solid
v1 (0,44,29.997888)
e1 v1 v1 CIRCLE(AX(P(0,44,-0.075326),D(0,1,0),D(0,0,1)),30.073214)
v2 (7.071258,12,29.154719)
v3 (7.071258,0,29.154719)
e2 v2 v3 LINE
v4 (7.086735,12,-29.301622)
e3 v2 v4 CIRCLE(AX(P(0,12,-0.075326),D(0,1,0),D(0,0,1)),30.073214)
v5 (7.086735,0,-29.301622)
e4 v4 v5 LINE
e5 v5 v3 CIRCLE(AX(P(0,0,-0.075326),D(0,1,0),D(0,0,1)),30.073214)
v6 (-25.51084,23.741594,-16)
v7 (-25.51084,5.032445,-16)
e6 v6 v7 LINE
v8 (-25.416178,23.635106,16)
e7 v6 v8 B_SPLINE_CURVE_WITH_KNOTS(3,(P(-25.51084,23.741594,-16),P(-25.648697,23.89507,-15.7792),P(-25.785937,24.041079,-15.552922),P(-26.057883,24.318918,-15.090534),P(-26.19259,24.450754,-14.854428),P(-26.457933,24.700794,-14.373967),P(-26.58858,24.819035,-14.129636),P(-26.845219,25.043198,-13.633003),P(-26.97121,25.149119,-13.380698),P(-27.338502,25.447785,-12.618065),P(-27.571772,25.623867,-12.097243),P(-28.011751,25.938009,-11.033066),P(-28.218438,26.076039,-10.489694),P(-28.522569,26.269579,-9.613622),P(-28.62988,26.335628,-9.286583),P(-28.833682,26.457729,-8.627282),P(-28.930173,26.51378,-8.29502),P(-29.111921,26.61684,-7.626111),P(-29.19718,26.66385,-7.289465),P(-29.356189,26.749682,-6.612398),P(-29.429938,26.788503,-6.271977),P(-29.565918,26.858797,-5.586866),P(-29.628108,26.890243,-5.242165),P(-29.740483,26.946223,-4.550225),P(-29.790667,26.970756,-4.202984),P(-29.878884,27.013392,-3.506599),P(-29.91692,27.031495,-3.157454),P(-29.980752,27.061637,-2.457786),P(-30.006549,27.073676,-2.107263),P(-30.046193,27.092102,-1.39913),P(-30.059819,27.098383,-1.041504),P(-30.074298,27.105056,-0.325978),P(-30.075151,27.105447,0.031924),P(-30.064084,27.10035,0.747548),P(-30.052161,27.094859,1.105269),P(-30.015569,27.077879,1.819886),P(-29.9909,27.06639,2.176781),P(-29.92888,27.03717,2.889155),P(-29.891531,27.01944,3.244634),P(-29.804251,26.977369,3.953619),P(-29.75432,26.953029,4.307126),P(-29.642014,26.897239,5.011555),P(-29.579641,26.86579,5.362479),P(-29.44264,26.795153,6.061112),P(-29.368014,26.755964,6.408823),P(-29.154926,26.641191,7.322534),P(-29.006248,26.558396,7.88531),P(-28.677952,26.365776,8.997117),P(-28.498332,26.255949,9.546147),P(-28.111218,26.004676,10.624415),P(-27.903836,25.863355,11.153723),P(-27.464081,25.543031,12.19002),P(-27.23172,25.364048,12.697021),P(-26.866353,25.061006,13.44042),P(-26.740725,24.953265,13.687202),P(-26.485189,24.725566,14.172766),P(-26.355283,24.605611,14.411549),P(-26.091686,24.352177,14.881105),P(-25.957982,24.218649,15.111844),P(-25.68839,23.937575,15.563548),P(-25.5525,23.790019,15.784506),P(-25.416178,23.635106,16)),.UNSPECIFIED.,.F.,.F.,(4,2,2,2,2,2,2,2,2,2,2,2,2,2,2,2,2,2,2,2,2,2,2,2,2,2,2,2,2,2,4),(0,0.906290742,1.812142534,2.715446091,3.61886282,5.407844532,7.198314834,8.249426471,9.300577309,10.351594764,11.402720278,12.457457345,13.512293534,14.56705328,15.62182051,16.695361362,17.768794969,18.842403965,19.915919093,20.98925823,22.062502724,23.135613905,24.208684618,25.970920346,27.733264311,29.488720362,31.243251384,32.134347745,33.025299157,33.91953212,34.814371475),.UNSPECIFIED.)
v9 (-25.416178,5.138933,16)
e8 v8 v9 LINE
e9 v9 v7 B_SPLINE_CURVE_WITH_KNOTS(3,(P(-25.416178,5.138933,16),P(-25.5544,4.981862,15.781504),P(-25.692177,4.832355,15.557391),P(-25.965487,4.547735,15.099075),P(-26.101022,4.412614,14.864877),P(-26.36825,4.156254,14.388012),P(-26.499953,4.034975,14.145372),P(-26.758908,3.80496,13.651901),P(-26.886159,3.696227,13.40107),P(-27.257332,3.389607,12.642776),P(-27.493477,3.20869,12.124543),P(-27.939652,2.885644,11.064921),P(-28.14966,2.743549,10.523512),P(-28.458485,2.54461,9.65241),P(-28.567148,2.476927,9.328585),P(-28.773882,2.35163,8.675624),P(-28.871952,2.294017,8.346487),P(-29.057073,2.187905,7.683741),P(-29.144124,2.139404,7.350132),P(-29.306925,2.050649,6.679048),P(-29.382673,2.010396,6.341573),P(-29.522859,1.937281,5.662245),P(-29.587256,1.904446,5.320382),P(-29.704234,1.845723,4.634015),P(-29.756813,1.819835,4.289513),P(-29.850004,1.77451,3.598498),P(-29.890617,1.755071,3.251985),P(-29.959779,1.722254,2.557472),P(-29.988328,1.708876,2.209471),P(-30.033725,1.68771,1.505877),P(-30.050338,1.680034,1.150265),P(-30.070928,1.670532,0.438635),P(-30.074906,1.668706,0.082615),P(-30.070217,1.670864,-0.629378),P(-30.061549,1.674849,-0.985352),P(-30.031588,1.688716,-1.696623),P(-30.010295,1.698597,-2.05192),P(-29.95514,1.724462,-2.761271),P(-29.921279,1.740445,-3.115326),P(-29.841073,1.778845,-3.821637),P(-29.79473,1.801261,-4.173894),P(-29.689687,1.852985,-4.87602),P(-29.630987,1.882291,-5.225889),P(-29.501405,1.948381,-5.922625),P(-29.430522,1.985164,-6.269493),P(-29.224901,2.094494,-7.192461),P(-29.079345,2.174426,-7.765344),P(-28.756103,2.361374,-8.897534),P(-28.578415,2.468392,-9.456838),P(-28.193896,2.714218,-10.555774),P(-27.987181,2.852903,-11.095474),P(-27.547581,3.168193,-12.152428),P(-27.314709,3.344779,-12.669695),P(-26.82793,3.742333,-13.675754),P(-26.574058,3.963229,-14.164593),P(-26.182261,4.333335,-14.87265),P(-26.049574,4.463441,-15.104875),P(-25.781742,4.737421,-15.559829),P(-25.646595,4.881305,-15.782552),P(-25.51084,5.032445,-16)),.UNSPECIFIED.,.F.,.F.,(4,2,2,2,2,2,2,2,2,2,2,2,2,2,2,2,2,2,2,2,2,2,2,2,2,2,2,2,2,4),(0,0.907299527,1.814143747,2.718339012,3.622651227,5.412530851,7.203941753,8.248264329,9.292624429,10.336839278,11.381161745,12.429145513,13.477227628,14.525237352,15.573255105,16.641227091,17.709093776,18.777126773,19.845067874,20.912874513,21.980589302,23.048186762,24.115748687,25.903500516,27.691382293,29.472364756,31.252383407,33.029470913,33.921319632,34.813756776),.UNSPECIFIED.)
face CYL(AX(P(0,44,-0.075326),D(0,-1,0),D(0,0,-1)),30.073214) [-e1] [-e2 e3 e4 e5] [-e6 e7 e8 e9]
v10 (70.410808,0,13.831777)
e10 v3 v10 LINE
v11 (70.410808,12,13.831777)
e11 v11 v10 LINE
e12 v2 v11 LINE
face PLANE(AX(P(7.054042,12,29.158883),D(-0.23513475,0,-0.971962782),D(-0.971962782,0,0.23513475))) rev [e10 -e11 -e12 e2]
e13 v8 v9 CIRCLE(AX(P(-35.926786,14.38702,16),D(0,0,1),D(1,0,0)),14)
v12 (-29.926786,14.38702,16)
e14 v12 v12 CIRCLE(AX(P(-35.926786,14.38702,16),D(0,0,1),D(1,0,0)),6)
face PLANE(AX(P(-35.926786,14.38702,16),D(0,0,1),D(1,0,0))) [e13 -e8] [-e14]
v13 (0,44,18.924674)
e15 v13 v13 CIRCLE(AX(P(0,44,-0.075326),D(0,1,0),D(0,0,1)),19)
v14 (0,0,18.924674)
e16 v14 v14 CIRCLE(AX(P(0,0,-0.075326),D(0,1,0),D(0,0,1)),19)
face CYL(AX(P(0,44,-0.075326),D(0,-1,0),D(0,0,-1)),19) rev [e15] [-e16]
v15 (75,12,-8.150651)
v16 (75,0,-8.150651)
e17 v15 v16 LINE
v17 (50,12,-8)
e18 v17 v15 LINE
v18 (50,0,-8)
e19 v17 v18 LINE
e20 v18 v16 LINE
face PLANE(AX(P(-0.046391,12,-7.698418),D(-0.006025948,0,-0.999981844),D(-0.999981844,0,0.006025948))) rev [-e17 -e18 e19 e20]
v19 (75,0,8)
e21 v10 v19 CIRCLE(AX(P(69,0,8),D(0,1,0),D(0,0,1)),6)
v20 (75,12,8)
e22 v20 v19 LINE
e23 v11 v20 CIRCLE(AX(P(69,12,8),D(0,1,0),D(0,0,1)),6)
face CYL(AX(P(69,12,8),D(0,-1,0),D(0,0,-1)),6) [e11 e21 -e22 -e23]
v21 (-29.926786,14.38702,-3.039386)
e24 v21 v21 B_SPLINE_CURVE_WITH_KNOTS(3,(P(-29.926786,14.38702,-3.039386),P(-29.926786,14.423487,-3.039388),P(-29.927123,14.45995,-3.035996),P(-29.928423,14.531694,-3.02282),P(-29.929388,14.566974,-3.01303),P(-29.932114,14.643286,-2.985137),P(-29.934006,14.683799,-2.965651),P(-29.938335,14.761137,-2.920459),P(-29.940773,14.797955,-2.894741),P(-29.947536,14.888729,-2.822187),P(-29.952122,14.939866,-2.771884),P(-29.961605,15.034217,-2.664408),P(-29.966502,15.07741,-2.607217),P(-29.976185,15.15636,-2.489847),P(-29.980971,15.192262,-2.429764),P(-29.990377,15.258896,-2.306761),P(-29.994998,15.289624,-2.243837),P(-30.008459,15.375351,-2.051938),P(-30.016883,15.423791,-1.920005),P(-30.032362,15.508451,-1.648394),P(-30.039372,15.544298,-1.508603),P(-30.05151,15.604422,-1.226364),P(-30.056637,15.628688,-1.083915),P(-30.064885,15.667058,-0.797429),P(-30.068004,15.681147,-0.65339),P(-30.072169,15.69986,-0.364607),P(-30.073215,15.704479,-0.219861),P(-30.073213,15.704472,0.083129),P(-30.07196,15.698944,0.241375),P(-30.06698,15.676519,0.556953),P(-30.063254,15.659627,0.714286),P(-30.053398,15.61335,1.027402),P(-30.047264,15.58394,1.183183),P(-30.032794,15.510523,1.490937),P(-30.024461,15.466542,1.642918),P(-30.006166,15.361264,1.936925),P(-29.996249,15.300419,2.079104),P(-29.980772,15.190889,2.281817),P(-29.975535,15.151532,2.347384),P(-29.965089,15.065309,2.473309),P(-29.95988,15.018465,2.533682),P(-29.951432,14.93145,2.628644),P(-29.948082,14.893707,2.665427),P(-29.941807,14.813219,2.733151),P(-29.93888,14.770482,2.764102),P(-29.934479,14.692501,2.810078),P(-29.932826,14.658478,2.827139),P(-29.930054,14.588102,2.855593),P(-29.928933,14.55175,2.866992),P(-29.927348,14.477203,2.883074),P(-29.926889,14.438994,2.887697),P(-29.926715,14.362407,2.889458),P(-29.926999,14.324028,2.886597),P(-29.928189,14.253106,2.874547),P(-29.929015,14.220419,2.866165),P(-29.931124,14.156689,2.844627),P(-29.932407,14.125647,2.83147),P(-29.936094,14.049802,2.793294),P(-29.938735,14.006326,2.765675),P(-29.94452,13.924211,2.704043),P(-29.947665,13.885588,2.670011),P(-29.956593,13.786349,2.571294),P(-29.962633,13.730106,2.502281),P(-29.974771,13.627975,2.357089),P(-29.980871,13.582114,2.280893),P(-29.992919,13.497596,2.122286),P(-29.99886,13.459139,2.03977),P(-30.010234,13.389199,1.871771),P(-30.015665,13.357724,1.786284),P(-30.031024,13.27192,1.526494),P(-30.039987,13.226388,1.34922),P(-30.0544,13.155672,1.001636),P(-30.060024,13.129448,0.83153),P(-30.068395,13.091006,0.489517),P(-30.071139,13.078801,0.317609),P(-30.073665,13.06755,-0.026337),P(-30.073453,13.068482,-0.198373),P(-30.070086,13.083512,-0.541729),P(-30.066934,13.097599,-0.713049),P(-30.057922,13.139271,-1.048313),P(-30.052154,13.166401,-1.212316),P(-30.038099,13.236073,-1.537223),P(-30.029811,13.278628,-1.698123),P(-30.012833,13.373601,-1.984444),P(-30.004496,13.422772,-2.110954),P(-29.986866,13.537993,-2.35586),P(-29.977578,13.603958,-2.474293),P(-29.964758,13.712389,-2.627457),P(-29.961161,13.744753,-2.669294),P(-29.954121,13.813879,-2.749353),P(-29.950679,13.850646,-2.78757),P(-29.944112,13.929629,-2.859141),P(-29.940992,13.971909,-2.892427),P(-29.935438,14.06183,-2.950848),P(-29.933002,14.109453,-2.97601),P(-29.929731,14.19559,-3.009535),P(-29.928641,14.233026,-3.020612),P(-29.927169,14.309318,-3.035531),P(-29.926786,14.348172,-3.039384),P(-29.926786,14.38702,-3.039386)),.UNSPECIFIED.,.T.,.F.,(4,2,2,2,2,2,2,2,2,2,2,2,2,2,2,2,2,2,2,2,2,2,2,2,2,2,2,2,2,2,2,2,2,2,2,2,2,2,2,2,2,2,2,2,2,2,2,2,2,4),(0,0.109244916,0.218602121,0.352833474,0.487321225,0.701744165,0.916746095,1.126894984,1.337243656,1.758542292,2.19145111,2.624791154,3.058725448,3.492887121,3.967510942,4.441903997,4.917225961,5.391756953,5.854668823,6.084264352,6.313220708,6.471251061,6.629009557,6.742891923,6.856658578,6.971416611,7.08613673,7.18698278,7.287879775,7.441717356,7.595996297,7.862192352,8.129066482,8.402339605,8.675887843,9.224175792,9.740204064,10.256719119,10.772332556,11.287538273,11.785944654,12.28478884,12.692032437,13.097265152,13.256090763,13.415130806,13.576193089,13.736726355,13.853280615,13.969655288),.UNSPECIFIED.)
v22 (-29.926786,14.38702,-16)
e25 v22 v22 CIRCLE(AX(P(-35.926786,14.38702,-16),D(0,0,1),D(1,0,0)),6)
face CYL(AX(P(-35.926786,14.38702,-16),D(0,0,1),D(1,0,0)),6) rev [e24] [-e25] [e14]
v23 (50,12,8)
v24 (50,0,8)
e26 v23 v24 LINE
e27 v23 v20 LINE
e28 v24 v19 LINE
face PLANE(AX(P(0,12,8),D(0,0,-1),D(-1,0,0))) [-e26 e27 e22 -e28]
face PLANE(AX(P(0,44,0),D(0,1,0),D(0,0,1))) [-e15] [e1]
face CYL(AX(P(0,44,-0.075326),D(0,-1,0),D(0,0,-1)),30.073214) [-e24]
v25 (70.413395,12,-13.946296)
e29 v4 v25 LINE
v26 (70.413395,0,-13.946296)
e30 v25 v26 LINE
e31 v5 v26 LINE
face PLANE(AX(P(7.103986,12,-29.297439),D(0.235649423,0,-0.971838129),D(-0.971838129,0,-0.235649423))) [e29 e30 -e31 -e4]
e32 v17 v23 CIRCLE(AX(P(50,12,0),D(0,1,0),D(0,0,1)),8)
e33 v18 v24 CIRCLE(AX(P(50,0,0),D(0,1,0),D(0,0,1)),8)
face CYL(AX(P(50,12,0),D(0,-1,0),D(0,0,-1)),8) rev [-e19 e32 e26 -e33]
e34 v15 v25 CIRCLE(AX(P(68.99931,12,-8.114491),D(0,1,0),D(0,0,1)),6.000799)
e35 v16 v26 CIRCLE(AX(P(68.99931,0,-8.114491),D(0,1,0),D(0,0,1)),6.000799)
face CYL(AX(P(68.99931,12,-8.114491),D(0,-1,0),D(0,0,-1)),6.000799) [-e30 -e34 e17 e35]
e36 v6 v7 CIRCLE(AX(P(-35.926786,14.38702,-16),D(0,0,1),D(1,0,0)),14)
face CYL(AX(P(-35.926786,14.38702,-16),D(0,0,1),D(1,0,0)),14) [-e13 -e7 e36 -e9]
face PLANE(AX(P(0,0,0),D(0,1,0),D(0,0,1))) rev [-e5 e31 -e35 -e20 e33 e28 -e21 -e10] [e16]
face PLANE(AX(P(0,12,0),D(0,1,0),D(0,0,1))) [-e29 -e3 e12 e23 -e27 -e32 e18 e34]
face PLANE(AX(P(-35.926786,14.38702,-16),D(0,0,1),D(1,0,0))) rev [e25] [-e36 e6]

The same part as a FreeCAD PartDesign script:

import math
import FreeCAD as App
import Part
import Sketcher

V = App.Vector
Q = App.Units.Quantity

doc = App.newDocument("Part")
body = doc.addObject("PartDesign::Body", "Body")

sketch1 = doc.addObject("Sketcher::SketchObject", "Sketch")
body.addObject(sketch1)
sketch1.AttachmentSupport = (doc.XZ_Plane, [""])
sketch1.MapMode = "FlatFace"
sketch1.addGeometry([
    Part.Circle(V(0, 0, 0), V(0, 0, 1), 30),
    Part.Circle(V(0, 0, 0), V(0, 0, 1), 19),
], False)
sketch1.addConstraint([
    Sketcher.Constraint("Coincident", 1, 3, 0, 3),
    Sketcher.Constraint("PointOnObject", 0, 3, -2),
    Sketcher.Constraint("Diameter", 1, Q("38 mm")),
    Sketcher.Constraint("Diameter", 0, Q("60.146428 mm")),
    Sketcher.Constraint("DistanceY", 0, 3, -1, 1, Q("0.075326 mm")),
])
pad1 = doc.addObject("PartDesign::Pad", "Pad")
body.addObject(pad1)
pad1.Profile = sketch1
pad1.Length = 44
pad1.Reversed = True

sketch2 = doc.addObject("Sketcher::SketchObject", "Sketch001")
body.addObject(sketch2)
sketch2.AttachmentSupport = (doc.XZ_Plane, [""])
sketch2.MapMode = "FlatFace"
sketch2.addGeometry([
    Part.ArcOfCircle(Part.Circle(V(50, 0, 0), V(0, 0, 1), 8), math.radians(90), math.radians(270)),
    Part.LineSegment(V(50, -8, 0), V(75, -8.150651, 0)),
    Part.ArcOfCircle(Part.Circle(V(68.99931, -8.114491, 0), V(0, 0, 1), 6.000799), math.radians(-76.370093), math.radians(-0.345263)),
    Part.LineSegment(V(70.413395, -13.946296, 0), V(7.086735, -29.301622, 0)),
    Part.ArcOfCircle(Part.Circle(V(0, -0.075326, 0), V(0, 0, 1), 30.073214), math.radians(-76.370093), math.radians(0)),
    Part.ArcOfCircle(Part.Circle(V(0, -0.075326, 0), V(0, 0, 1), 30.073214), math.radians(0), math.radians(76.400434)),
    Part.LineSegment(V(7.071258, 29.154719, 0), V(70.410809, 13.831777, 0)),
    Part.ArcOfCircle(Part.Circle(V(69, 8, 0), V(0, 0, 1), 6), math.radians(0), math.radians(76.400434)),
    Part.LineSegment(V(75, 8, 0), V(50, 8, 0)),
], False)
sketch2.addConstraint([
    Sketcher.Constraint("Coincident", 0, 2, 1, 1),
    Sketcher.Constraint("Coincident", 1, 2, 2, 2),
    Sketcher.Constraint("Tangent", 2, 1, 3, 1),
    Sketcher.Constraint("Tangent", 3, 2, 4, 1),
    Sketcher.Constraint("Tangent", 4, 2, 5, 1),
    Sketcher.Constraint("Tangent", 5, 2, 6, 1),
    Sketcher.Constraint("Tangent", 6, 2, 7, 2),
    Sketcher.Constraint("Coincident", 7, 1, 8, 1),
    Sketcher.Constraint("Tangent", 8, 2, 0, 1),
    Sketcher.Constraint("Horizontal", 8),
    Sketcher.Constraint("Equal", 4, 5),
    Sketcher.Constraint("Symmetric", 0, 2, 8, 2, -1),
    Sketcher.Constraint("PointOnObject", 4, 3, -2),
    Sketcher.Constraint("Horizontal", 5, 3, 4, 2),
    Sketcher.Constraint("Vertical", 1, 2, 7, 1),
    Sketcher.Constraint("Radius", 0, Q("8 mm")),
    Sketcher.Constraint("Radius", 7, Q("6 mm")),
    Sketcher.Constraint("DistanceX", 8, 2, 8, 1, Q("25 mm")),
    Sketcher.Constraint("DistanceX", -1, 1, 0, 3, Q("50 mm")),
    Sketcher.Constraint("DistanceY", -1, 1, 7, 3, Q("8 mm")),
    Sketcher.Constraint("Radius", 2, Q("6.000799 mm")),
    Sketcher.Constraint("Radius", 4, Q("30.073214 mm")),
    Sketcher.Constraint("DistanceX", 2, 3, 6, 2, Q("1.411498 mm")),
    Sketcher.Constraint("DistanceX", -1, 1, 2, 3, Q("68.99931 mm")),
    Sketcher.Constraint("DistanceY", 2, 3, -1, 1, Q("8.114491 mm")),
])
pad2 = doc.addObject("PartDesign::Pad", "Pad001")
body.addObject(pad2)
pad2.Profile = sketch2
pad2.Length = 12
pad2.Reversed = True

sketch3 = doc.addObject("Sketcher::SketchObject", "Sketch002")
body.addObject(sketch3)
sketch3.AttachmentSupport = (doc.XY_Plane, [""])
sketch3.MapMode = "FlatFace"
sketch3.addGeometry([
    Part.Circle(V(-36, 14, 0), V(0, 0, 1), 14),
    Part.Circle(V(-36, 14, 0), V(0, 0, 1), 6),
], False)
sketch3.addConstraint([
    Sketcher.Constraint("Coincident", 1, 3, 0, 3),
    Sketcher.Constraint("Diameter", 0, Q("28 mm")),
    Sketcher.Constraint("Diameter", 1, Q("12 mm")),
    Sketcher.Constraint("DistanceY", -1, 1, 0, 3, Q("14.38702 mm")),
    Sketcher.Constraint("DistanceX", 0, 3, -1, 1, Q("35.926786 mm")),
])
pad3 = doc.addObject("PartDesign::Pad", "Pad002")
body.addObject(pad3)
pad3.Profile = sketch3
pad3.Type = "TwoLengths"
pad3.Length = 16
pad3.Length2 = 16

doc.recompute()
